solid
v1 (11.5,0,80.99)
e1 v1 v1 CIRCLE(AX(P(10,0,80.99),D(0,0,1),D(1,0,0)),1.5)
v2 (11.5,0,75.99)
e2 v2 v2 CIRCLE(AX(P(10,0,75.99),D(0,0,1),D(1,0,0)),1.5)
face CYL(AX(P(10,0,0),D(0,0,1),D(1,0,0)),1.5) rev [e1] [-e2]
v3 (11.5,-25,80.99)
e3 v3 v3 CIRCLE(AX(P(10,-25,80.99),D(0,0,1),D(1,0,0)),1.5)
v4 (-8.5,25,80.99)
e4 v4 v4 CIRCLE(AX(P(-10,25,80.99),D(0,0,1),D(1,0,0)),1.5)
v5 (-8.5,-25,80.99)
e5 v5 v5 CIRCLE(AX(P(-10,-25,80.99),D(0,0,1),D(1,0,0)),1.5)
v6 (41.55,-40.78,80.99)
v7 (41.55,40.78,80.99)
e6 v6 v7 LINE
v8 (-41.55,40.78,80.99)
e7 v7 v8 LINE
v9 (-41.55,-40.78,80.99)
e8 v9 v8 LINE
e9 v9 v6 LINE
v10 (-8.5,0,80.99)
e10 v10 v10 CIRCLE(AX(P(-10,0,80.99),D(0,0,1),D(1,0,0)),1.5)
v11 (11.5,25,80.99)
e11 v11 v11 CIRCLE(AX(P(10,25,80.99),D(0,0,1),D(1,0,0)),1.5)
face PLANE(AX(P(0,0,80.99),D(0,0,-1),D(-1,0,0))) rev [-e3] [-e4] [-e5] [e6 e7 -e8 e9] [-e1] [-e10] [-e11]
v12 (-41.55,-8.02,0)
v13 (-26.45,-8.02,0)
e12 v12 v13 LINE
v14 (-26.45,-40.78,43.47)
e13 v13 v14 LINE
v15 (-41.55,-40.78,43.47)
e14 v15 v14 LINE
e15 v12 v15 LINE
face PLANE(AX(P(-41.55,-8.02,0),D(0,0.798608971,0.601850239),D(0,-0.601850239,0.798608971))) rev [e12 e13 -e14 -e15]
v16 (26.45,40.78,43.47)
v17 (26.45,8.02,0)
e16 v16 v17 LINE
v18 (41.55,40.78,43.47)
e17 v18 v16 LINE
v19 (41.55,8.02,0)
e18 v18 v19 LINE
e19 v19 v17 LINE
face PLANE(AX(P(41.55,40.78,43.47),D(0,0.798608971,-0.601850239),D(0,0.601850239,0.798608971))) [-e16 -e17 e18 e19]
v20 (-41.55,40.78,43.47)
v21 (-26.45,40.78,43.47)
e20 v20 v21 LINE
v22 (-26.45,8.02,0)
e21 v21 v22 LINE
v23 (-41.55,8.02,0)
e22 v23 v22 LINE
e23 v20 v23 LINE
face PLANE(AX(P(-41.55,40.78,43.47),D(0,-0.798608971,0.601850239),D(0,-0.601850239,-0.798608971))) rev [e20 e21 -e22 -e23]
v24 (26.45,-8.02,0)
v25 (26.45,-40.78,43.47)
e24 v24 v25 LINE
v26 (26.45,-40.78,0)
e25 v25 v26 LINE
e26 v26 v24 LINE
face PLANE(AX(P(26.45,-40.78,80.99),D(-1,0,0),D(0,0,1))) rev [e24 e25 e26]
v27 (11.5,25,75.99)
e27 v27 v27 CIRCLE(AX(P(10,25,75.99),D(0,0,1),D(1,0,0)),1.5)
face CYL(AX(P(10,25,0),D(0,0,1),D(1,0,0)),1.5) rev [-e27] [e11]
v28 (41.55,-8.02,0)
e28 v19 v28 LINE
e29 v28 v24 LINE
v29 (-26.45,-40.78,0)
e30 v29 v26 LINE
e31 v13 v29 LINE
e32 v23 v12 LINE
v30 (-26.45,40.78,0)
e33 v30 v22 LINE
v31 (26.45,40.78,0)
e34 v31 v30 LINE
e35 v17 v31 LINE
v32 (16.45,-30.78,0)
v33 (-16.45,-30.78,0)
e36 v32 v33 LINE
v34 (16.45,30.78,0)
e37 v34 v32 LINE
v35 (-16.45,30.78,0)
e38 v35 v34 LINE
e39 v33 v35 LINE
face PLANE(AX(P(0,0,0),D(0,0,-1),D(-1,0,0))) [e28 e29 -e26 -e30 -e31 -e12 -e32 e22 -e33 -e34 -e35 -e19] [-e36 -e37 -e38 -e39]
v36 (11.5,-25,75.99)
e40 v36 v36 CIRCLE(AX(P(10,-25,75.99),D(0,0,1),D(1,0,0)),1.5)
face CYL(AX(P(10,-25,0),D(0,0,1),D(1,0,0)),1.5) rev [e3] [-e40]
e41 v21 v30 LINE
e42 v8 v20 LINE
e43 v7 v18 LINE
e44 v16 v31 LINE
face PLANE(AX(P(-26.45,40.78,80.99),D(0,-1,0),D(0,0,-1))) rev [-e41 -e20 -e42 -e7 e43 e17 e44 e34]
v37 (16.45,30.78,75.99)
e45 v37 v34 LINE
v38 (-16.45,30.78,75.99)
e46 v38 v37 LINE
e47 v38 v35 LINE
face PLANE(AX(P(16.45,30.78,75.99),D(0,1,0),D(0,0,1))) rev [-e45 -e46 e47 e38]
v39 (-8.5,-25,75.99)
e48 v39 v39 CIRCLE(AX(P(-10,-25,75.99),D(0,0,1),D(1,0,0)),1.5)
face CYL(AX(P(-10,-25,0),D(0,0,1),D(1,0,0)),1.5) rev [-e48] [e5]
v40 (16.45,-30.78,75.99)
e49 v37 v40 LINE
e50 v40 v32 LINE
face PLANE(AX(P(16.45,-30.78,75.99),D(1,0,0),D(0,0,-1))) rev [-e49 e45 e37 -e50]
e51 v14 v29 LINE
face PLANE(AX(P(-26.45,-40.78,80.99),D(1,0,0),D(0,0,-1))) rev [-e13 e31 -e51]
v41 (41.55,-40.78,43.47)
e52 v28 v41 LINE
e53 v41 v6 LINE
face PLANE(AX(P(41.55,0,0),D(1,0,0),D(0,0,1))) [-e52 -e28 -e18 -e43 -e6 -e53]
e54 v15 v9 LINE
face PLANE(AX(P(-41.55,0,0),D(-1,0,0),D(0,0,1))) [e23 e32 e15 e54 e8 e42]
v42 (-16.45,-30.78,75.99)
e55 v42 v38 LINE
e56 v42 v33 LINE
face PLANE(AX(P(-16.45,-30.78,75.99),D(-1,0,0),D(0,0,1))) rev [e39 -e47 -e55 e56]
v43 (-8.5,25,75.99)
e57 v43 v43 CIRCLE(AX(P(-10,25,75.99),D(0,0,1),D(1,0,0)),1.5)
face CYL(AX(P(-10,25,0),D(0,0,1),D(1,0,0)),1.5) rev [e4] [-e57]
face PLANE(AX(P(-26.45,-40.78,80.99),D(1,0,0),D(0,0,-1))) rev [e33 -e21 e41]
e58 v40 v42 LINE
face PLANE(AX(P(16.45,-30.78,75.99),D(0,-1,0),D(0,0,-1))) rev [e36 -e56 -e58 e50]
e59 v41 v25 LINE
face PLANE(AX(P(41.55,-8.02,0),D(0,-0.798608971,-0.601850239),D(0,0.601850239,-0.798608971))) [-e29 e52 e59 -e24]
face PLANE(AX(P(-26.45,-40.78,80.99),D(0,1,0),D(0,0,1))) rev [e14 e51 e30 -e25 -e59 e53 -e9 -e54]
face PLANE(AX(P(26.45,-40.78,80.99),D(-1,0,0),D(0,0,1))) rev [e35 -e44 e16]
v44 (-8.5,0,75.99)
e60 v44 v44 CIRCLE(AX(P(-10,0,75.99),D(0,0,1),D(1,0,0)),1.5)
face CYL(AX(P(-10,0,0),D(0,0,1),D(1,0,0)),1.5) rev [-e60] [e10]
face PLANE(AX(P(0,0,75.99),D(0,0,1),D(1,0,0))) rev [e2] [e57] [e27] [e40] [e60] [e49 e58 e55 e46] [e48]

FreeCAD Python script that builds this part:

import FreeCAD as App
import Part
import Sketcher

V = App.Vector

doc = App.newDocument("Part")
body = doc.addObject("PartDesign::Body", "Body")

sketch1 = body.newObject("Sketcher::SketchObject", "Sketch")
sketch1.AttachmentSupport = (doc.getObject("XY_Plane"), [""])
sketch1.MapMode = "FlatFace"
sketch1.addGeometry([
    Part.LineSegment(V(-26, 41, 0), V(-26, -41, 0)),
    Part.LineSegment(V(-26, -41, 0), V(26, -41, 0)),
    Part.LineSegment(V(26, -41, 0), V(26, 41, 0)),
    Part.LineSegment(V(26, 41, 0), V(-26, 41, 0)),
], False)
sketch1.addConstraint([
    Sketcher.Constraint("Coincident", 0, 2, 1, 1),
    Sketcher.Constraint("Coincident", 1, 2, 2, 1),
    Sketcher.Constraint("Coincident", 2, 2, 3, 1),
    Sketcher.Constraint("Coincident", 3, 2, 0, 1),
    Sketcher.Constraint("Vertical", 0),
    Sketcher.Constraint("Horizontal", 1),
    Sketcher.Constraint("Vertical", 2),
    Sketcher.Constraint("Horizontal", 3),
    Sketcher.Constraint("Symmetric", 0, 2, 2, 2, -1, 1),
    Sketcher.Constraint("DistanceX", 1, 1, 1, 2, 52.9),
    Sketcher.Constraint("DistanceY", 0, 2, 0, 1, 81.56),
])
pad1 = body.newObject("PartDesign::Pad", "Pad")
pad1.Profile = sketch1
pad1.Length = 80.99

sketch2 = body.newObject("Sketcher::SketchObject", "Sketch001")
sketch2.AttachmentSupport = (doc.getObject("XY_Plane"), [""])
sketch2.MapMode = "FlatFace"
sketch2.addGeometry([
    Part.LineSegment(V(16, 31, 0), V(16, -31, 0)),
    Part.LineSegment(V(16, -31, 0), V(-16, -31, 0)),
    Part.LineSegment(V(-16, -31, 0), V(-16, 31, 0)),
    Part.LineSegment(V(-16, 31, 0), V(16, 31, 0)),
], False)
sketch2.addConstraint([
    Sketcher.Constraint("Coincident", 0, 2, 1, 1),
    Sketcher.Constraint("Coincident", 1, 2, 2, 1),
    Sketcher.Constraint("Coincident", 2, 2, 3, 1),
    Sketcher.Constraint("Coincident", 3, 2, 0, 1),
    Sketcher.Constraint("Vertical", 0),
    Sketcher.Constraint("Horizontal", 1),
    Sketcher.Constraint("Vertical", 2),
    Sketcher.Constraint("Horizontal", 3),
    Sketcher.Constraint("Symmetric", 0, 2, 2, 2, -1, 1),
    Sketcher.Constraint("DistanceX", 1, 2, 1, 1, 32.9),
    Sketcher.Constraint("DistanceY", 0, 2, 0, 1, 61.56),
])
pocket1 = body.newObject("PartDesign::Pocket", "Pocket")
pocket1.Profile = sketch2
pocket1.Length = 75.99
pocket1.Reversed = True

sketch3 = body.newObject("Sketcher::SketchObject", "Sketch002")
sketch3.AttachmentSupport = (doc.getObject("YZ_Plane"), [""])
sketch3.MapMode = "FlatFace"
sketch3.AttachmentOffset = App.Placement(V(0, 0, -26.45), App.Rotation())
sketch3.addGeometry([
    Part.LineSegment(V(41, 81, 0), V(41, 43, 0)),
    Part.LineSegment(V(41, 43, 0), V(8, 0, 0)),
    Part.LineSegment(V(8, 0, 0), V(-8, 0, 0)),
    Part.LineSegment(V(-8, 0, 0), V(-41, 43, 0)),
    Part.LineSegment(V(-41, 43, 0), V(-41, 81, 0)),
    Part.LineSegment(V(-41, 81, 0), V(41, 81, 0)),
], False)
sketch3.addConstraint([
    Sketcher.Constraint("Coincident", 0, 2, 1, 1),
    Sketcher.Constraint("Coincident", 1, 2, 2, 1),
    Sketcher.Constraint("Coincident", 2, 2, 3, 1),
    Sketcher.Constraint("Coincident", 3, 2, 4, 1),
    Sketcher.Constraint("Coincident", 4, 2, 5, 1),
    Sketcher.Constraint("Coincident", 5, 2, 0, 1),
    Sketcher.Constraint("Vertical", 0),
    Sketcher.Constraint("Horizontal", 2),
    Sketcher.Constraint("Vertical", 4),
    Sketcher.Constraint("Horizontal", 5),
    Sketcher.Constraint("Symmetric", 1, 2, 2, 2, -1, 1),
    Sketcher.Constraint("Symmetric", 0, 2, 3, 2, -2),
    Sketcher.Constraint("DistanceX", 2, 2, 2, 1, 16.04),
    Sketcher.Constraint("DistanceX", 5, 1, 5, 2, 81.56),
    Sketcher.Constraint("DistanceY", 0, 2, 0, 1, 37.52),
    Sketcher.Constraint("DistanceY", -1, 1, 0, 2, 43.47),
])
pad2 = body.newObject("PartDesign::Pad", "Pad001")
pad2.Profile = sketch3
pad2.Length = 15.1
pad2.Reversed = True
doc.recompute()

mirrored = body.newObject("PartDesign::Mirrored", "Mirrored")
mirrored.Originals = [pad2]
mirrored.MirrorPlane = (doc.getObject("YZ_Plane"), [""])
body.Tip = mirrored

sketch4 = body.newObject("Sketcher::SketchObject", "Sketch003")
sketch4.AttachmentSupport = (doc.getObject("XY_Plane"), [""])
sketch4.MapMode = "FlatFace"
sketch4.AttachmentOffset = App.Placement(V(0, 0, 80.99), App.Rotation())
sketch4.addGeometry([
    Part.Circle(V(-10, 25, 0), V(0, 0, 1), 1.5),
    Part.Circle(V(10, 25, 0), V(0, 0, 1), 1.5),
    Part.Circle(V(-10, -25, 0), V(0, 0, 1), 1.5),
    Part.Circle(V(10, -25, 0), V(0, 0, 1), 1.5),
    Part.Circle(V(-10, 0, 0), V(0, 0, 1), 1.5),
    Part.Circle(V(10, 0, 0), V(0, 0, 1), 1.5),
], False)
sketch4.addConstraint([
    Sketcher.Constraint("Equal", 0, 1),
    Sketcher.Constraint("Equal", 1, 2),
    Sketcher.Constraint("Equal", 2, 3),
    Sketcher.Constraint("Equal", 3, 4),
    Sketcher.Constraint("Equal", 4, 5),
    Sketcher.Constraint("Symmetric", 1, 3, 2, 3, -1, 1),
    Sketcher.Constraint("Symmetric", 0, 3, 3, 3, -1, 1),
    Sketcher.Constraint("Symmetric", 4, 3, 5, 3, -1, 1),
    Sketcher.Constraint("Symmetric", 0, 3, 1, 3, -2),
    Sketcher.Constraint("PointOnObject", 4, 3, -1),
    Sketcher.Constraint("Vertical", 2, 3, 4, 3),
    Sketcher.Constraint("Diameter", 0, 3.0),
    Sketcher.Constraint("DistanceX", 0, 3, -1, 1, 10.0),
    Sketcher.Constraint("DistanceY", -1, 1, 0, 3, 25.0),
])
pocket2 = body.newObject("PartDesign::Pocket", "Pocket001")
pocket2.Profile = sketch4
pocket2.Type = "ThroughAll"

doc.recompute()
